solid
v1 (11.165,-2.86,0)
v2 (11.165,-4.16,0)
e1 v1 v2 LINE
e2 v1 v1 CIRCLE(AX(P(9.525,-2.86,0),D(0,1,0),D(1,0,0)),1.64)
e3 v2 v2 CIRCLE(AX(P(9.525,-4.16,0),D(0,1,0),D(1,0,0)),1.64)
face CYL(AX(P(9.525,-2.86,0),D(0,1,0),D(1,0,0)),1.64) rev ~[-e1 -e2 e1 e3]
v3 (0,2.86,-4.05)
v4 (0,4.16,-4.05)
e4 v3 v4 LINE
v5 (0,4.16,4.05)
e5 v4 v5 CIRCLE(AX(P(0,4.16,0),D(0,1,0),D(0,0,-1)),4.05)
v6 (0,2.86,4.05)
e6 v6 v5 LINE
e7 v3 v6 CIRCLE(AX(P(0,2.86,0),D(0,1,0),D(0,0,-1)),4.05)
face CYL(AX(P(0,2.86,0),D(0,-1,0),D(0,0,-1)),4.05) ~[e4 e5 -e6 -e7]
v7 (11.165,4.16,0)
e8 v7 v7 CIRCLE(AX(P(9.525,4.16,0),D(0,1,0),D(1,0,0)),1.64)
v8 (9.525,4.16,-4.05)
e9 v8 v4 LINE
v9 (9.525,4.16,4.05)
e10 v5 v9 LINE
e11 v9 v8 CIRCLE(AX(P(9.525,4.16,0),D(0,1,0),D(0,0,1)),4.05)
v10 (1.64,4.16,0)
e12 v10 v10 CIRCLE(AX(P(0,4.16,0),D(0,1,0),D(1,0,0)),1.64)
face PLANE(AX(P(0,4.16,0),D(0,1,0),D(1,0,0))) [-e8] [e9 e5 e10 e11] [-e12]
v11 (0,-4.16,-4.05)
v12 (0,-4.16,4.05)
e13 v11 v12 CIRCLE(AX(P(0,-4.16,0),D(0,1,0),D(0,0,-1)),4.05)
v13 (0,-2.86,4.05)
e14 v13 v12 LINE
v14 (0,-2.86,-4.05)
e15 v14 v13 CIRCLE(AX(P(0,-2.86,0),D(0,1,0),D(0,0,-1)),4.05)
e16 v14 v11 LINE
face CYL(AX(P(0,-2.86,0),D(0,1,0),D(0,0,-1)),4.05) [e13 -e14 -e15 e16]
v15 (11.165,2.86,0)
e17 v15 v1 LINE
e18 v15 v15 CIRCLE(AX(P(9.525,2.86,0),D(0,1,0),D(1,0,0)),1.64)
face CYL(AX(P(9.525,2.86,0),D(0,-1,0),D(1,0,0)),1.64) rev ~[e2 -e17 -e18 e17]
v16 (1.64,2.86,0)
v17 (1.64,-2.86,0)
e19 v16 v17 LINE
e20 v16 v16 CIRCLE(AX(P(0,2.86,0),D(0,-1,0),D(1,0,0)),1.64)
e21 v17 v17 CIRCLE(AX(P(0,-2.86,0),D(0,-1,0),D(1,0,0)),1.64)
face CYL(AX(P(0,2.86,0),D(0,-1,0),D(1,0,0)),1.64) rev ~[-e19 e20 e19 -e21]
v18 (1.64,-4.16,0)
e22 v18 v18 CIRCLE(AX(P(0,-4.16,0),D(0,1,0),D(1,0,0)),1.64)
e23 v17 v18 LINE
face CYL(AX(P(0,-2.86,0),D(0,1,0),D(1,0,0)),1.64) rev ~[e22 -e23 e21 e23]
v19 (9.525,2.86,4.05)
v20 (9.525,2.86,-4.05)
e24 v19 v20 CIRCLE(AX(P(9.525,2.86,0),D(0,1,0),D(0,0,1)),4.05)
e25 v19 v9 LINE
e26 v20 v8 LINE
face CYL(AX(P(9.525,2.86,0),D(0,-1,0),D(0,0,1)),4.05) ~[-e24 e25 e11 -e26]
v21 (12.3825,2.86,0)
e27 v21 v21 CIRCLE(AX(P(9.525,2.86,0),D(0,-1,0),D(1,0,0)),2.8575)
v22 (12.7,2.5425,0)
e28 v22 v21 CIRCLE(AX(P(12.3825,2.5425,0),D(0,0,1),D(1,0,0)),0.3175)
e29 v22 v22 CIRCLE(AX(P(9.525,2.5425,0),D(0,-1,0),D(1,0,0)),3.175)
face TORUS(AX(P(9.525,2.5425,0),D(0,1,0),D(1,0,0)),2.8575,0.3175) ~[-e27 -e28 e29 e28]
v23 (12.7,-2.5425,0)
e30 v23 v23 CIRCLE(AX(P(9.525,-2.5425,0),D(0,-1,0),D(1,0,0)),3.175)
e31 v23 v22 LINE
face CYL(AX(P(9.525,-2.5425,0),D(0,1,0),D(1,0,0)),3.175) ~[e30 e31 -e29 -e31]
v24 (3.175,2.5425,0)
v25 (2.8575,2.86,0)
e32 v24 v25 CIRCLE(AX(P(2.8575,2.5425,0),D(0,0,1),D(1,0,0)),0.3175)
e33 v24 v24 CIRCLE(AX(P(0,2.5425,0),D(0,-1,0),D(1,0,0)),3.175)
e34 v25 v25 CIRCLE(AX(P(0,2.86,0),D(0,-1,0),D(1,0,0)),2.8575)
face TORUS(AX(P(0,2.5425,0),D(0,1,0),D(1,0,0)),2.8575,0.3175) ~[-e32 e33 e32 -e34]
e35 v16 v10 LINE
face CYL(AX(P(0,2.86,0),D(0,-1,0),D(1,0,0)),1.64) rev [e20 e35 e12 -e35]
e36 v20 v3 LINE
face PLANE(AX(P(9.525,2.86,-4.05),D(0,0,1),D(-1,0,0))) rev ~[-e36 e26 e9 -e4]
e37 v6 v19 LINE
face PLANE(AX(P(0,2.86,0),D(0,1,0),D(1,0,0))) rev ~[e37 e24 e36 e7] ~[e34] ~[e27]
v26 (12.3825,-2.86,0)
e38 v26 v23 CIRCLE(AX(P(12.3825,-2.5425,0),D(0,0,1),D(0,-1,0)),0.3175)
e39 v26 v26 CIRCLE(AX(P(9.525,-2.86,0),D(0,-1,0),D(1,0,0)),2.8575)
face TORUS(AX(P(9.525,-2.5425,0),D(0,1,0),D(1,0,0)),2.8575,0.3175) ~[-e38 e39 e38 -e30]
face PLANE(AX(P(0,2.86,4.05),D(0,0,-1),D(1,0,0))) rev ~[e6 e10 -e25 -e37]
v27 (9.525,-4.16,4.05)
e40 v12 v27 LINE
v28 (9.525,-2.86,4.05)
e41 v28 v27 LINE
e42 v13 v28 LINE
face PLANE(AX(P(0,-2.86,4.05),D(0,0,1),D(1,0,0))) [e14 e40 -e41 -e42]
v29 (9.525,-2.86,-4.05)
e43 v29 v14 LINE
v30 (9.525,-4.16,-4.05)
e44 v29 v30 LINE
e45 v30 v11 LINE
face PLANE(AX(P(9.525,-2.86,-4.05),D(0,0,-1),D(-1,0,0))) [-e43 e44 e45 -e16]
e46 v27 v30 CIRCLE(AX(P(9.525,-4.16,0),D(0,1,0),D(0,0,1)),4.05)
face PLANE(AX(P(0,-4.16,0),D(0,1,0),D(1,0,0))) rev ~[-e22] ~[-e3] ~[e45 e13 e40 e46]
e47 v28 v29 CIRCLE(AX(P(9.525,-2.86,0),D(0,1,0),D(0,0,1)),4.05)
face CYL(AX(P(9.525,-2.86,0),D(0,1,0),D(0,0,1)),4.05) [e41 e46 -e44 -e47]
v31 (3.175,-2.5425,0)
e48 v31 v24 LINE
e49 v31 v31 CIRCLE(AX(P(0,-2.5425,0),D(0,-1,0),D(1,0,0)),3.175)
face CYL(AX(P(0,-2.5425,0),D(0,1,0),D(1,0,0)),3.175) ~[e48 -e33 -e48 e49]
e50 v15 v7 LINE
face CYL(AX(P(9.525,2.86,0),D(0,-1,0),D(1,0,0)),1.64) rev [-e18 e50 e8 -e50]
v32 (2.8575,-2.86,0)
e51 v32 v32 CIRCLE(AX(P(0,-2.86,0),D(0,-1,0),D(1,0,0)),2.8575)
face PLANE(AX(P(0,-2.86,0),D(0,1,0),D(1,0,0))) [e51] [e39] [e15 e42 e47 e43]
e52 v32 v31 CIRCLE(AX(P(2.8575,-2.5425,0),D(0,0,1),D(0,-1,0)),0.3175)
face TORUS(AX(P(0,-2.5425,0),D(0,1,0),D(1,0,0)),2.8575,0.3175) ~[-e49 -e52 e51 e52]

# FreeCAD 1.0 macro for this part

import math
import FreeCAD as App
import Part
import Sketcher

V = App.Vector
Q = App.Units.Quantity

doc = App.newDocument("Part")
params = doc.addObject("Spreadsheet::Sheet", "Params")
for row, (alias, value) in enumerate([
    ("revolution_angle", "360 deg"),
    ("sketch2_width", "0.375 in"),
    ("pad1_length", "1.3 mm"),
    ("sketch3_width", "0.375 in"),
    ("pad2_length", "1.3 mm"),
    ("revolution2_angle", "360 deg"),
], start=1):
    params.set(f"A{row}", alias)
    params.set(f"B{row}", "=" + value)
    params.setAlias(f"B{row}", alias)

body = doc.addObject("PartDesign::Body", "Body")

# Sketch on XY plane
sketch1 = doc.addObject("Sketcher::SketchObject", "Sketch")
body.addObject(sketch1)
sketch1.AttachmentSupport = (doc.XY_Plane, [""])
sketch1.MapMode = "FlatFace"
sketch1.addGeometry(Part.LineSegment(V(2.8575, 2.86, 0), V(1.64, 2.86, 0)), False)
sketch1.addGeometry(Part.LineSegment(V(1.64, 2.86, 0), V(1.64, -2.86, 0)), False)
sketch1.addGeometry(Part.LineSegment(V(1.64, -2.86, 0), V(2.8575, -2.86, 0)), False)
sketch1.addGeometry(Part.ArcOfCircle(Part.Circle(V(2.8575, -2.5425, 0), V(0, 0, 1), 0.3175), math.radians(-90), math.radians(0)), False)
sketch1.addGeometry(Part.LineSegment(V(3.175, -2.5425, 0), V(3.175, 2.5425, 0)), False)
sketch1.addGeometry(Part.ArcOfCircle(Part.Circle(V(2.8575, 2.5425, 0), V(0, 0, 1), 0.3175), math.radians(0), math.radians(90)), False)
sketch1.addConstraint(Sketcher.Constraint("Coincident", 0, 2, 1, 1))
sketch1.addConstraint(Sketcher.Constraint("Coincident", 1, 2, 2, 1))
sketch1.addConstraint(Sketcher.Constraint("Tangent", 2, 2, 3, 1))
sketch1.addConstraint(Sketcher.Constraint("Tangent", 3, 2, 4, 1))
sketch1.addConstraint(Sketcher.Constraint("Tangent", 4, 2, 5, 1))
sketch1.addConstraint(Sketcher.Constraint("Tangent", 5, 2, 0, 1))
sketch1.addConstraint(Sketcher.Constraint("Horizontal", 0))
sketch1.addConstraint(Sketcher.Constraint("Vertical", 1))
sketch1.addConstraint(Sketcher.Constraint("Horizontal", 2))
sketch1.addConstraint(Sketcher.Constraint("Vertical", 4))
sketch1.addConstraint(Sketcher.Constraint("Equal", 3, 5))
sketch1.addConstraint(Sketcher.Constraint("Radius", 3, Q("0.0125 in")))
sketch1.addConstraint(Sketcher.Constraint("DistanceY", 1, 2, 1, 1, Q("0.2252 in")))
sketch1.addConstraint(Sketcher.Constraint("DistanceX", -1, 1, 3, 2, Q("0.125 in")))
sketch1.addConstraint(Sketcher.Constraint("DistanceX", 0, 2, 0, 1, 1.2175))
sketch1.addConstraint(Sketcher.Constraint("DistanceY", 3, 3, -1, 1, Q("0.1001 in")))
revolution = doc.addObject("PartDesign::Revolution", "Revolution")
body.addObject(revolution)
revolution.Profile = sketch1
revolution.ReferenceAxis = (sketch1, ["V_Axis"])
revolution.setExpression("Angle", "Params.revolution_angle")

# Sketch on XZ plane
sketch2 = doc.addObject("Sketcher::SketchObject", "Sketch001")
body.addObject(sketch2)
sketch2.AttachmentSupport = (doc.XZ_Plane, [""])
sketch2.MapMode = "FlatFace"
sketch2.AttachmentOffset = App.Placement(V(0, 0, -0.1125984 * 25.4), App.Rotation())
sketch2.addGeometry(Part.LineSegment(V(9.525, -4.05, 0), V(0, -4.05, 0)), False)
sketch2.addGeometry(Part.ArcOfCircle(Part.Circle(V(0, 0, 0), V(0, 0, 1), 4.05), math.radians(90), math.radians(270)), False)
sketch2.addGeometry(Part.LineSegment(V(0, 4.05, 0), V(9.525, 4.05, 0)), False)
sketch2.addGeometry(Part.ArcOfCircle(Part.Circle(V(9.525, 0, 0), V(0, 0, 1), 4.05), math.radians(-90), math.radians(90)), False)
sketch2.addGeometry(Part.Circle(V(0, 0, 0), V(0, 0, 1), 1.64), False)
sketch2.addGeometry(Part.Circle(V(9.525, 0, 0), V(0, 0, 1), 1.64), False)
sketch2.addConstraint(Sketcher.Constraint("Tangent", 0, 2, 1, 2))
sketch2.addConstraint(Sketcher.Constraint("Tangent", 1, 1, 2, 1))
sketch2.addConstraint(Sketcher.Constraint("Tangent", 2, 2, 3, 2))
sketch2.addConstraint(Sketcher.Constraint("Tangent", 3, 1, 0, 1))
sketch2.addConstraint(Sketcher.Constraint("Horizontal", 0))
sketch2.addConstraint(Sketcher.Constraint("Horizontal", 2))
sketch2.addConstraint(Sketcher.Constraint("Coincident", 1, 3, -1, 1))
sketch2.addConstraint(Sketcher.Constraint("Coincident", 4, 3, -1, 1))
sketch2.addConstraint(Sketcher.Constraint("Coincident", 5, 3, 3, 3))
sketch2.addConstraint(Sketcher.Constraint("Equal", 4, 5))
sketch2.addConstraint(Sketcher.Constraint("Diameter", 4, 3.28))
sketch2.addConstraint(Sketcher.Constraint("DistanceX", 0, 2, 0, 1, Q("0.375 in")))
sketch2.addConstraint(Sketcher.Constraint("Radius", 1, 4.05))
sketch2.setExpression("Constraints[11]", "Params.sketch2_width")
pad1 = doc.addObject("PartDesign::Pad", "Pad")
body.addObject(pad1)
pad1.Profile = sketch2
pad1.setExpression("Length", "Params.pad1_length")
pad1.Reversed = True

# Sketch on XZ plane
sketch3 = doc.addObject("Sketcher::SketchObject", "Sketch002")
body.addObject(sketch3)
sketch3.AttachmentSupport = (doc.XZ_Plane, [""])
sketch3.MapMode = "FlatFace"
sketch3.AttachmentOffset = App.Placement(V(0, 0, 0.1125984 * 25.4), App.Rotation())
sketch3.addGeometry(Part.LineSegment(V(9.525, -4.05, 0), V(0, -4.05, 0)), False)
sketch3.addGeometry(Part.ArcOfCircle(Part.Circle(V(0, 0, 0), V(0, 0, 1), 4.05), math.radians(90), math.radians(270)), False)
sketch3.addGeometry(Part.LineSegment(V(0, 4.05, 0), V(9.525, 4.05, 0)), False)
sketch3.addGeometry(Part.ArcOfCircle(Part.Circle(V(9.525, 0, 0), V(0, 0, 1), 4.05), math.radians(-90), math.radians(90)), False)
sketch3.addGeometry(Part.Circle(V(0, 0, 0), V(0, 0, 1), 1.64), False)
sketch3.addGeometry(Part.Circle(V(9.525, 0, 0), V(0, 0, 1), 1.64), False)
sketch3.addConstraint(Sketcher.Constraint("Tangent", 0, 2, 1, 2))
sketch3.addConstraint(Sketcher.Constraint("Tangent", 1, 1, 2, 1))
sketch3.addConstraint(Sketcher.Constraint("Tangent", 2, 2, 3, 2))
sketch3.addConstraint(Sketcher.Constraint("Tangent", 3, 1, 0, 1))
sketch3.addConstraint(Sketcher.Constraint("Horizontal", 0))
sketch3.addConstraint(Sketcher.Constraint("Horizontal", 2))
sketch3.addConstraint(Sketcher.Constraint("Coincident", 1, 3, -1, 1))
sketch3.addConstraint(Sketcher.Constraint("Coincident", 4, 3, -1, 1))
sketch3.addConstraint(Sketcher.Constraint("Coincident", 5, 3, 3, 3))
sketch3.addConstraint(Sketcher.Constraint("Equal", 4, 5))
sketch3.addConstraint(Sketcher.Constraint("Diameter", 4, 3.28))
sketch3.addConstraint(Sketcher.Constraint("DistanceX", 0, 2, 0, 1, Q("0.375 in")))
sketch3.addConstraint(Sketcher.Constraint("Radius", 1, 4.05))
sketch3.setExpression("Constraints[11]", "Params.sketch3_width")
pad2 = doc.addObject("PartDesign::Pad", "Pad001")
body.addObject(pad2)
pad2.Profile = sketch3
pad2.setExpression("Length", "Params.pad2_length")

# Sketch on XY plane
sketch4 = doc.addObject("Sketcher::SketchObject", "Sketch003")
body.addObject(sketch4)
sketch4.AttachmentSupport = (doc.XY_Plane, [""])
sketch4.MapMode = "FlatFace"
sketch4.addGeometry(Part.LineSegment(V(12.3825, 2.86, 0), V(11.165, 2.86, 0)), False)
sketch4.addGeometry(Part.LineSegment(V(11.165, 2.86, 0), V(11.165, -2.86, 0)), False)
sketch4.addGeometry(Part.LineSegment(V(11.165, -2.86, 0), V(12.3825, -2.86, 0)), False)
sketch4.addGeometry(Part.ArcOfCircle(Part.Circle(V(12.3825, -2.5425, 0), V(0, 0, 1), 0.3175), math.radians(-90), math.radians(0)), False)
sketch4.addGeometry(Part.LineSegment(V(12.7, -2.5425, 0), V(12.7, 2.5425, 0)), False)
sketch4.addGeometry(Part.ArcOfCircle(Part.Circle(V(12.3825, 2.5425, 0), V(0, 0, 1), 0.3175), math.radians(0), math.radians(90)), False)
sketch4.addGeometry(Part.LineSegment(V(9.525, 2.86, 0), V(9.525, -2.86, 0)), True)  # axis
sketch4.addConstraint(Sketcher.Constraint("Coincident", 0, 2, 1, 1))
sketch4.addConstraint(Sketcher.Constraint("Coincident", 1, 2, 2, 1))
sketch4.addConstraint(Sketcher.Constraint("Tangent", 2, 2, 3, 1))
sketch4.addConstraint(Sketcher.Constraint("Tangent", 3, 2, 4, 1))
sketch4.addConstraint(Sketcher.Constraint("Tangent", 4, 2, 5, 1))
sketch4.addConstraint(Sketcher.Constraint("Tangent", 5, 2, 0, 1))
sketch4.addConstraint(Sketcher.Constraint("Horizontal", 0))
sketch4.addConstraint(Sketcher.Constraint("Vertical", 1))
sketch4.addConstraint(Sketcher.Constraint("Horizontal", 2))
sketch4.addConstraint(Sketcher.Constraint("Vertical", 4))
sketch4.addConstraint(Sketcher.Constraint("Vertical", 6))
sketch4.addConstraint(Sketcher.Constraint("Equal", 3, 5))
sketch4.addConstraint(Sketcher.Constraint("Horizontal", 5, 2, 6, 1))
sketch4.addConstraint(Sketcher.Constraint("Horizontal", 2, 2, 6, 2))
sketch4.addConstraint(Sketcher.Constraint("DistanceX", -1, 1, 3, 2, Q("0.5 in")))
sketch4.addConstraint(Sketcher.Constraint("Radius", 3, Q("0.0125 in")))
sketch4.addConstraint(Sketcher.Constraint("DistanceY", 1, 2, 1, 1, Q("0.2252 in")))
sketch4.addConstraint(Sketcher.Constraint("DistanceX", -1, 1, 6, 1, Q("0.375 in")))
sketch4.addConstraint(Sketcher.Constraint("DistanceX", 0, 2, 0, 1, 1.2175))
sketch4.addConstraint(Sketcher.Constraint("DistanceY", 3, 3, -1, 1, Q("0.1001 in")))
revolution2 = doc.addObject("PartDesign::Revolution", "Revolution001")
body.addObject(revolution2)
revolution2.Profile = sketch4
revolution2.ReferenceAxis = (sketch4, ["Axis0"])
revolution2.setExpression("Angle", "Params.revolution2_angle")

doc.recompute()
